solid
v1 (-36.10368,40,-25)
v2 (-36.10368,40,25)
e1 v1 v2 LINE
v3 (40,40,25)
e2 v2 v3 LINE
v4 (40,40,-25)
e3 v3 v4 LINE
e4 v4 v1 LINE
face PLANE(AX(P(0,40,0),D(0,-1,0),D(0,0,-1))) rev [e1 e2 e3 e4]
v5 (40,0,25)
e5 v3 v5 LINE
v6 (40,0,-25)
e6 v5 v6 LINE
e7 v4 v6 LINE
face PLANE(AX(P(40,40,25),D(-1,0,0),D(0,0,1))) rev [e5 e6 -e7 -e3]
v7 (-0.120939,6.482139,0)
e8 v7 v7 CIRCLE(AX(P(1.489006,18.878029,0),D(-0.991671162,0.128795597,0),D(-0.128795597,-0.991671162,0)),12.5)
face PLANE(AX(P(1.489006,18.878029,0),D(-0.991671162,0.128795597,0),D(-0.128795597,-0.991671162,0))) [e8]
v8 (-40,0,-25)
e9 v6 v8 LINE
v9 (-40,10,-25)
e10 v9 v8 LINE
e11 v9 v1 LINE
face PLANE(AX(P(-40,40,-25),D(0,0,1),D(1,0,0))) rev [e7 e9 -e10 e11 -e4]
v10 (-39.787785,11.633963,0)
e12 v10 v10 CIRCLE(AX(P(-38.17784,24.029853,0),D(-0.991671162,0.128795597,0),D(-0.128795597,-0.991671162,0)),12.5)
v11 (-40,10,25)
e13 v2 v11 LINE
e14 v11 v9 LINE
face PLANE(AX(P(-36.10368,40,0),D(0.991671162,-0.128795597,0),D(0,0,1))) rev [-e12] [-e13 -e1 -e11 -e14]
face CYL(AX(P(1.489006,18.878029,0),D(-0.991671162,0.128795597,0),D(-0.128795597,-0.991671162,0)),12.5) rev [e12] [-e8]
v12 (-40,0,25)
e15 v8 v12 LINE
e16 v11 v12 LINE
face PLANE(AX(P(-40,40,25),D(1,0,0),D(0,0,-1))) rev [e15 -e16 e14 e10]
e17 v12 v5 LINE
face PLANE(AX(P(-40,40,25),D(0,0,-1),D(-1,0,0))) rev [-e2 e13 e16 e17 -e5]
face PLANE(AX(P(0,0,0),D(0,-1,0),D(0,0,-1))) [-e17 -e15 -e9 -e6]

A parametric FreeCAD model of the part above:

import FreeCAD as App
import Part
import Sketcher
Q = App.Units.Quantity


def edges_at(feature, points):
    """Names of the edges that pass closest to the given points."""
    edges = feature.Shape.Edges
    near = lambda p: min(range(len(edges)), key=lambda i: edges[i].distToShape(Part.Vertex(*p))[0])
    return sorted({f"Edge{near(p) + 1}" for p in points})


def add_polygon(sketch, points):
    """Adds a closed chain of lines whose ends are joined by coincident constraints."""
    first, n = sketch.GeometryCount, len(points)
    for a, b in zip(points, points[1:] + points[:1]):
        sketch.addGeometry(Part.LineSegment(App.Vector(*a, 0), App.Vector(*b, 0)), False)
    for i in range(n):
        sketch.addConstraint(Sketcher.Constraint("Coincident", first + i, 2, first + (i + 1) % n, 1))

doc = App.newDocument("Part")
body = doc.addObject("PartDesign::Body", "Body")

# Sketch on XZ plane
sketch1 = body.newObject("Sketcher::SketchObject", "Sketch")
sketch1.AttachmentSupport = (doc.getObject("XZ_Plane"), [""])
sketch1.MapMode = "FlatFace"
add_polygon(sketch1, [(-40, -25), (-40, 25), (40, 25), (40, -25)])  # lines 0-3
sketch1.addConstraint([
    Sketcher.Constraint("Vertical", 0),
    Sketcher.Constraint("Horizontal", 1),
    Sketcher.Constraint("Vertical", 2),
    Sketcher.Constraint("Horizontal", 3),
    Sketcher.Constraint("Symmetric", 0, 2, 2, 2, -1, 1),
    Sketcher.Constraint("DistanceX", 1, 1, 1, 2, Q("80 mm")),
    Sketcher.Constraint("DistanceY", 0, 1, 0, 2, Q("50 mm")),
])
pad1 = body.newObject("PartDesign::Pad", "Pad")
pad1.Profile = sketch1
pad1.Length = 40
pad1.Reversed = True
doc.recompute()

chamfer = body.newObject("PartDesign::Chamfer", "Chamfer")
chamfer.Base = (pad1, edges_at(pad1, [(-40, 40, 0)]))
chamfer.ChamferType = "Two distances"
chamfer.Size = 30
chamfer.Size2 = 3.89632

# Sketch on an angled plane
sketch2 = body.newObject("Sketcher::SketchObject", "Sketch001")
sketch2.Placement = App.Placement(App.Vector(-40.613697, 5.274798, 0), App.Rotation(App.Vector(0, 0, 1), App.Vector(0.128795597, 0.991671162, 0), App.Vector(-0.991671162, 0.128795597, 0), "ZXY"))
sketch2.addGeometry(Part.Circle(App.Vector(0, 18.912574, 0), App.Vector(0, 0, 1), 12.5), False)
sketch2.addConstraint([
    Sketcher.Constraint("PointOnObject", 0, 3, -2),
    Sketcher.Constraint("Diameter", 0, Q("25 mm")),
    Sketcher.Constraint("DistanceY", -1, 1, 0, 3, Q("18.912574 mm")),
])
pocket1 = body.newObject("PartDesign::Pocket", "Pocket")
pocket1.Profile = sketch2
pocket1.Length = 40

doc.recompute()
